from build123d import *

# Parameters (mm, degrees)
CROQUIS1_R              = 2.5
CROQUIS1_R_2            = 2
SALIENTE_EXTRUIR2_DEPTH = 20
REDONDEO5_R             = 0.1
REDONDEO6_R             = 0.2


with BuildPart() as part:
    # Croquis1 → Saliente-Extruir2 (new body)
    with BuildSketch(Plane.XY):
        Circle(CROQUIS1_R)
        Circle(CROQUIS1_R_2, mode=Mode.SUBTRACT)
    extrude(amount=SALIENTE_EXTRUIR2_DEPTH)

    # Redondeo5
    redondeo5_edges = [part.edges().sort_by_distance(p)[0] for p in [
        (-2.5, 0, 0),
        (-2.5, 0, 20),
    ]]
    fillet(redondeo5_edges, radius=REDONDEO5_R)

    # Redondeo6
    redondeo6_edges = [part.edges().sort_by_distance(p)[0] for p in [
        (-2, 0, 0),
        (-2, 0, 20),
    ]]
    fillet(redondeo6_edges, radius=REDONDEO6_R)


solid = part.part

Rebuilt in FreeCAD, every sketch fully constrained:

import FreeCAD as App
import Part
import Sketcher

V = App.Vector
Q = App.Units.Quantity


def edges_at(feature, points):
    """Names of the edges that pass closest to the given points."""
    edges = feature.Shape.Edges
    near = lambda p: min(range(len(edges)), key=lambda i: edges[i].distToShape(Part.Vertex(*p))[0])
    return sorted({f"Edge{near(p) + 1}" for p in points})

doc = App.newDocument("Part")
body = doc.addObject("PartDesign::Body", "Body")

sketch1 = body.newObject("Sketcher::SketchObject", "Sketch")
sketch1.AttachmentSupport = (doc.getObject("XY_Plane"), [""])
sketch1.MapMode = "FlatFace"
sketch1.addGeometry(Part.Circle(V(0, 0, 0), V(0, 0, 1), 2.5), False)
sketch1.addGeometry(Part.Circle(V(0, 0, 0), V(0, 0, 1), 2), False)
sketch1.addConstraint(Sketcher.Constraint("Coincident", 0, 3, -1, 1))
sketch1.addConstraint(Sketcher.Constraint("Coincident", 1, 3, -1, 1))
sketch1.addConstraint(Sketcher.Constraint("Diameter", 0, Q("5 mm")))
sketch1.addConstraint(Sketcher.Constraint("Diameter", 1, Q("4 mm")))
pad1 = body.newObject("PartDesign::Pad", "Pad")
pad1.Profile = sketch1
pad1.Length = 20
doc.recompute()

fillet = body.newObject("PartDesign::Fillet", "Fillet")
fillet.Base = (pad1, edges_at(pad1, [(-2.5, 0, 0), (-2.5, 0, 20)]))
fillet.Radius = 0.1
doc.recompute()

fillet2 = body.newObject("PartDesign::Fillet", "Fillet001")
fillet2.Base = (fillet, edges_at(fillet, [(-2, 0, 0), (-2, 0, 20)]))
fillet2.Radius = 0.2

doc.recompute()
